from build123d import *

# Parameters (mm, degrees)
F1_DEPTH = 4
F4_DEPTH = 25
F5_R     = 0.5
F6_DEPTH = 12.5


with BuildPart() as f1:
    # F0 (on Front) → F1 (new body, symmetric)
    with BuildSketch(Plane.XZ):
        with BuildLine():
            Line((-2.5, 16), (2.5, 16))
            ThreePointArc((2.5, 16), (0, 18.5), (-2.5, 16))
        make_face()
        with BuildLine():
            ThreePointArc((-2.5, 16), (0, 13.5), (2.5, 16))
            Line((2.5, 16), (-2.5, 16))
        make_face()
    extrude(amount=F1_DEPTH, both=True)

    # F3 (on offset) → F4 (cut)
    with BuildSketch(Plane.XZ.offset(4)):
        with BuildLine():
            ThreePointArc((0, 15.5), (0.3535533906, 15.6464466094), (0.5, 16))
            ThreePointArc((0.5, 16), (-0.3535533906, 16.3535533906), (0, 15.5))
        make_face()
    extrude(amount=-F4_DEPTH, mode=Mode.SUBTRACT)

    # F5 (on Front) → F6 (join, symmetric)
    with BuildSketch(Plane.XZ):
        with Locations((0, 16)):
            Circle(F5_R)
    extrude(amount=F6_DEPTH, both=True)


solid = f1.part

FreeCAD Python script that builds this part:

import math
import FreeCAD as App
import Part
import Sketcher

V = App.Vector

doc = App.newDocument("Part")
body = doc.addObject("PartDesign::Body", "Body")

sketch1 = body.newObject("Sketcher::SketchObject", "Sketch")
sketch1.AttachmentSupport = (doc.getObject("XZ_Plane"), [""])
sketch1.MapMode = "FlatFace"
sketch1.addGeometry(Part.Circle(V(0, 16, 0), V(0, 0, 1), 2.5), False)
sketch1.addConstraint(Sketcher.Constraint("PointOnObject", 0, 3, -2))
sketch1.addConstraint(Sketcher.Constraint("Diameter", 0, 5.0))
sketch1.addConstraint(Sketcher.Constraint("DistanceY", -1, 1, 0, 3, 16.0))
pad1 = body.newObject("PartDesign::Pad", "Pad")
pad1.Profile = sketch1
pad1.Length = 8
pad1.Midplane = True

sketch2 = body.newObject("Sketcher::SketchObject", "Sketch001")
sketch2.AttachmentSupport = (doc.getObject("XZ_Plane"), [""])
sketch2.MapMode = "FlatFace"
sketch2.AttachmentOffset = App.Placement(V(0, 0, 4), App.Rotation())
sketch2.addGeometry(Part.ArcOfCircle(Part.Circle(V(0, 16, 0), V(0, 0, 1), 0.5), math.radians(-90), math.radians(0)), False)
sketch2.addGeometry(Part.ArcOfCircle(Part.Circle(V(0, 16, 0), V(0, 0, 1), 0.5), math.radians(0), math.radians(270)), False)
sketch2.addConstraint(Sketcher.Constraint("Tangent", 0, 1, 1, 2))
sketch2.addConstraint(Sketcher.Constraint("Coincident", 1, 1, 0, 2))
sketch2.addConstraint(Sketcher.Constraint("PointOnObject", 0, 3, -2))
sketch2.addConstraint(Sketcher.Constraint("PointOnObject", 0, 1, -2))
sketch2.addConstraint(Sketcher.Constraint("Horizontal", 0, 3, 1, 1))
sketch2.addConstraint(Sketcher.Constraint("Radius", 0, 0.5))
sketch2.addConstraint(Sketcher.Constraint("DistanceY", -1, 1, 0, 3, 16.0))
pocket1 = body.newObject("PartDesign::Pocket", "Pocket")
pocket1.Profile = sketch2
pocket1.Length = 25

sketch3 = body.newObject("Sketcher::SketchObject", "Sketch002")
sketch3.AttachmentSupport = (doc.getObject("XZ_Plane"), [""])
sketch3.MapMode = "FlatFace"
sketch3.addGeometry(Part.Circle(V(0, 16, 0), V(0, 0, 1), 0.5), False)
sketch3.addConstraint(Sketcher.Constraint("PointOnObject", 0, 3, -2))
sketch3.addConstraint(Sketcher.Constraint("Diameter", 0, 1.0))
sketch3.addConstraint(Sketcher.Constraint("DistanceY", -1, 1, 0, 3, 16.0))
pad2 = body.newObject("PartDesign::Pad", "Pad001")
pad2.Profile = sketch3
pad2.Length = 25
pad2.Midplane = True

doc.recompute()
